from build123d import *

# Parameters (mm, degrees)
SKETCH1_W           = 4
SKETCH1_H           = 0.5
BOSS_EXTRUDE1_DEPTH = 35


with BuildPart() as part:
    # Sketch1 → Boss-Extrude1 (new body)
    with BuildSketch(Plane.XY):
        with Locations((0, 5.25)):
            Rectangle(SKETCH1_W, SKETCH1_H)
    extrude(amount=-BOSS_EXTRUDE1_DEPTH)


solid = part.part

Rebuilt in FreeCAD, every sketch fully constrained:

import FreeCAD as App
import Part
import Sketcher

doc = App.newDocument("Part")
body = doc.addObject("PartDesign::Body", "Body")

# Sketch on XY plane
sketch1 = body.newObject("Sketcher::SketchObject", "Sketch")
sketch1.AttachmentSupport = (doc.getObject("XY_Plane"), [""])
sketch1.MapMode = "FlatFace"
sketch1.addGeometry(Part.LineSegment(App.Vector(-2, 5.5, 0), App.Vector(-2, 5, 0)), False)
sketch1.addGeometry(Part.LineSegment(App.Vector(-2, 5, 0), App.Vector(2, 5, 0)), False)
sketch1.addGeometry(Part.LineSegment(App.Vector(2, 5, 0), App.Vector(2, 5.5, 0)), False)
sketch1.addGeometry(Part.LineSegment(App.Vector(2, 5.5, 0), App.Vector(-2, 5.5, 0)), False)
sketch1.addConstraint(Sketcher.Constraint("Coincident", 0, 2, 1, 1))
sketch1.addConstraint(Sketcher.Constraint("Coincident", 1, 2, 2, 1))
sketch1.addConstraint(Sketcher.Constraint("Coincident", 2, 2, 3, 1))
sketch1.addConstraint(Sketcher.Constraint("Coincident", 3, 2, 0, 1))
sketch1.addConstraint(Sketcher.Constraint("Vertical", 0))
sketch1.addConstraint(Sketcher.Constraint("Horizontal", 1))
sketch1.addConstraint(Sketcher.Constraint("Vertical", 2))
sketch1.addConstraint(Sketcher.Constraint("Horizontal", 3))
sketch1.addConstraint(Sketcher.Constraint("DistanceX", 1, 1, 1, 2, 4.0))
sketch1.addConstraint(Sketcher.Constraint("DistanceY", 0, 2, 0, 1, 0.5))
sketch1.addConstraint(Sketcher.Constraint("DistanceX", 0, 2, -1, 1, 2.0))
sketch1.addConstraint(Sketcher.Constraint("DistanceY", -1, 1, 0, 2, 5.0))
pad1 = body.newObject("PartDesign::Pad", "Pad")
pad1.Profile = sketch1
pad1.Length = 35
pad1.Reversed = True

doc.recompute()
